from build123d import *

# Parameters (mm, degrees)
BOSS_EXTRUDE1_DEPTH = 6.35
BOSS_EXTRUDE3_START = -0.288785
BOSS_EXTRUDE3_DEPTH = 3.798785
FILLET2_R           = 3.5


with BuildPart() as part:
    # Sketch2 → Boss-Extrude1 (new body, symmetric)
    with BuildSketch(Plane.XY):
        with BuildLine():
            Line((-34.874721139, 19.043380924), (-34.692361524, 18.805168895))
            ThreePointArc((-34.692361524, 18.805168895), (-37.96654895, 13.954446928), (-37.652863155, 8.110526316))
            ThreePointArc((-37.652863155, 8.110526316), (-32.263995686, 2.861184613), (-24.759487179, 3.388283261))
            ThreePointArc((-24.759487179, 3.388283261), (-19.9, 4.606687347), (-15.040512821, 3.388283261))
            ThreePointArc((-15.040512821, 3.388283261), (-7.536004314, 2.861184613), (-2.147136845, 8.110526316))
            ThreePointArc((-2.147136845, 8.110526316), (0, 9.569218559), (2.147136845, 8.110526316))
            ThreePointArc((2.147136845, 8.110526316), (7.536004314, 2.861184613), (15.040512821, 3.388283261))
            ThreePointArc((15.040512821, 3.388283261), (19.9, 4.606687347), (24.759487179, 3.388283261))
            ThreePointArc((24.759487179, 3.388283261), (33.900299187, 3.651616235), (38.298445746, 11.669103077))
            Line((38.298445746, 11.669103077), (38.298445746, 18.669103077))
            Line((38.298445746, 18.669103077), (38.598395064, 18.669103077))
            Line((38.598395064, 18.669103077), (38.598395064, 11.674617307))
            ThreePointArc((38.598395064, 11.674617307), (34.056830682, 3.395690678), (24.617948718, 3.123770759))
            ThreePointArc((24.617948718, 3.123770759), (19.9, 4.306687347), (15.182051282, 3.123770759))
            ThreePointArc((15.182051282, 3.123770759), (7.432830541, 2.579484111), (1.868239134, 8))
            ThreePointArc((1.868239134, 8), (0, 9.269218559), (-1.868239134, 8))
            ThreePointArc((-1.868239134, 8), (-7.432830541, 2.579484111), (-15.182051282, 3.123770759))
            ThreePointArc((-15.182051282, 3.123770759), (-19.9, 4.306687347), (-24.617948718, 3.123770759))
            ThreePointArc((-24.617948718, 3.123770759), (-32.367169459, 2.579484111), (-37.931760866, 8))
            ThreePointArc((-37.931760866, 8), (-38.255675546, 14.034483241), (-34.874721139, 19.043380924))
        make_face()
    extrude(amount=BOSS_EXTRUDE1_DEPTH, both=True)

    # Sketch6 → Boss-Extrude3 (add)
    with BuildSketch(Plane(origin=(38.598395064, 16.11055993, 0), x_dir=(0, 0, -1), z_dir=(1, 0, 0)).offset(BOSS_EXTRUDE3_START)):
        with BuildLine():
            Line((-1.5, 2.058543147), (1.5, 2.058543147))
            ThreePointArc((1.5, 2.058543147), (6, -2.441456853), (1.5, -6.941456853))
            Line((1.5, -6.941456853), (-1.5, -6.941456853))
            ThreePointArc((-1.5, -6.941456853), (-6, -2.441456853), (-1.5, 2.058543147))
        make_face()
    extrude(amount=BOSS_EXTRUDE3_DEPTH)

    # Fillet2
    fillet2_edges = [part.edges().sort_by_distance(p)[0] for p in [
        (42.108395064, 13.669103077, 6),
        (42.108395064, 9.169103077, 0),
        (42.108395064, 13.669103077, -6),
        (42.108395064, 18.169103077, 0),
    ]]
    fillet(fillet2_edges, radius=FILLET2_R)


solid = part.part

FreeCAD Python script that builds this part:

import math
import FreeCAD as App
import Part
import Sketcher

V = App.Vector


def edges_at(feature, points):
    """Names of the edges that pass closest to the given points."""
    edges = feature.Shape.Edges
    near = lambda p: min(range(len(edges)), key=lambda i: edges[i].distToShape(Part.Vertex(*p))[0])
    return sorted({f"Edge{near(p) + 1}" for p in points})

doc = App.newDocument("Part")
params = doc.addObject("Spreadsheet::Sheet", "Params")
for row, (alias, value) in enumerate([
    ("sketch1_radius", "10 mm"),
    ("sketch1_radius2", "9.5 mm"),
    ("sketch1_radius3", "9.2 mm"),
    ("sketch1_height", "7 mm"),
    ("pad1_length", "12.7 mm"),
    ("sketch2_radius", "4.5 mm"),
    ("sketch2_height", "3 mm"),
    ("pad2_length", "3.798785 mm"),
    ("fillet_radius", "3.5 mm"),
], start=1):
    params.set(f"A{row}", alias)
    params.set(f"B{row}", "=" + value)
    params.setAlias(f"B{row}", alias)

body = doc.addObject("PartDesign::Body", "Body")

sketch1 = body.newObject("Sketcher::SketchObject", "Sketch")
sketch1.AttachmentSupport = (doc.getObject("XY_Plane"), [""])
sketch1.MapMode = "FlatFace"
sketch1.addGeometry(Part.LineSegment(V(-34.692362, 18.805169, 0), V(-34.874721, 19.043381, 0)), False)
sketch1.addGeometry(Part.ArcOfCircle(Part.Circle(V(-29.1, 11.5, 0), V(0, 0, 1), 9.5), math.radians(127.435316), math.radians(201.618272)), False)
sketch1.addGeometry(Part.ArcOfCircle(Part.Circle(V(-29.1, 11.5, 0), V(0, 0, 1), 9.5), math.radians(-158.381728), math.radians(-61.849131)), False)
sketch1.addGeometry(Part.ArcOfCircle(Part.Circle(V(-19.9, -5.693313, 0), V(0, 0, 1), 10), math.radians(61.849131), math.radians(118.150869)), False)
sketch1.addGeometry(Part.ArcOfCircle(Part.Circle(V(-10.7, 11.5, 0), V(0, 0, 1), 9.5), math.radians(-118.150869), math.radians(-21.618272)), False)
sketch1.addGeometry(Part.ArcOfCircle(Part.Circle(V(0, 7.259623, 0), V(0, 0, 1), 2.009596), math.radians(21.618272), math.radians(158.381728)), False)
sketch1.addGeometry(Part.ArcOfCircle(Part.Circle(V(10.7, 11.5, 0), V(0, 0, 1), 9.5), math.radians(-158.381728), math.radians(-61.849131)), False)
sketch1.addGeometry(Part.ArcOfCircle(Part.Circle(V(19.9, -5.693313, 0), V(0, 0, 1), 10), math.radians(61.849131), math.radians(118.150869)), False)
sketch1.addGeometry(Part.ArcOfCircle(Part.Circle(V(29.1, 11.5, 0), V(0, 0, 1), 9.5), math.radians(-118.150869), math.radians(1.0532)), False)
sketch1.addGeometry(Part.LineSegment(V(38.598395, 11.674617, 0), V(38.598395, 18.669103, 0)), False)
sketch1.addGeometry(Part.LineSegment(V(38.598395, 18.669103, 0), V(38.298446, 18.669103, 0)), False)
sketch1.addGeometry(Part.LineSegment(V(38.298446, 18.669103, 0), V(38.298446, 11.669103, 0)), False)
sketch1.addGeometry(Part.ArcOfCircle(Part.Circle(V(29.1, 11.5, 0), V(0, 0, 1), 9.2), math.radians(-118.150869), math.radians(1.0532)), False)
sketch1.addGeometry(Part.ArcOfCircle(Part.Circle(V(19.9, -5.693313, 0), V(0, 0, 1), 10.3), math.radians(61.849131), math.radians(118.150869)), False)
sketch1.addGeometry(Part.ArcOfCircle(Part.Circle(V(10.7, 11.5, 0), V(0, 0, 1), 9.2), math.radians(-158.381728), math.radians(-61.849131)), False)
sketch1.addGeometry(Part.ArcOfCircle(Part.Circle(V(0, 7.259623, 0), V(0, 0, 1), 2.309596), math.radians(21.618272), math.radians(158.381728)), False)
sketch1.addGeometry(Part.ArcOfCircle(Part.Circle(V(-10.7, 11.5, 0), V(0, 0, 1), 9.2), math.radians(-118.150869), math.radians(-21.618272)), False)
sketch1.addGeometry(Part.ArcOfCircle(Part.Circle(V(-19.9, -5.693313, 0), V(0, 0, 1), 10.3), math.radians(61.849131), math.radians(118.150869)), False)
sketch1.addGeometry(Part.ArcOfCircle(Part.Circle(V(-29.1, 11.5, 0), V(0, 0, 1), 9.2), math.radians(-158.381728), math.radians(-61.849131)), False)
sketch1.addGeometry(Part.ArcOfCircle(Part.Circle(V(-29.1, 11.5, 0), V(0, 0, 1), 9.2), math.radians(127.435316), math.radians(201.618272)), False)
sketch1.addConstraint(Sketcher.Constraint("Coincident", 0, 2, 1, 1))
sketch1.addConstraint(Sketcher.Constraint("Tangent", 1, 2, 2, 1))
sketch1.addConstraint(Sketcher.Constraint("Tangent", 2, 2, 3, 2))
sketch1.addConstraint(Sketcher.Constraint("Tangent", 3, 1, 4, 1))
sketch1.addConstraint(Sketcher.Constraint("Tangent", 4, 2, 5, 2))
sketch1.addConstraint(Sketcher.Constraint("Tangent", 5, 1, 6, 1))
sketch1.addConstraint(Sketcher.Constraint("Tangent", 6, 2, 7, 2))
sketch1.addConstraint(Sketcher.Constraint("Tangent", 7, 1, 8, 1))
sketch1.addConstraint(Sketcher.Constraint("Coincident", 8, 2, 9, 1))
sketch1.addConstraint(Sketcher.Constraint("Coincident", 9, 2, 10, 1))
sketch1.addConstraint(Sketcher.Constraint("Coincident", 10, 2, 11, 1))
sketch1.addConstraint(Sketcher.Constraint("Coincident", 11, 2, 12, 2))
sketch1.addConstraint(Sketcher.Constraint("Tangent", 12, 1, 13, 1))
sketch1.addConstraint(Sketcher.Constraint("Tangent", 13, 2, 14, 2))
sketch1.addConstraint(Sketcher.Constraint("Tangent", 14, 1, 15, 1))
sketch1.addConstraint(Sketcher.Constraint("Tangent", 15, 2, 16, 2))
sketch1.addConstraint(Sketcher.Constraint("Tangent", 16, 1, 17, 1))
sketch1.addConstraint(Sketcher.Constraint("Tangent", 17, 2, 18, 2))
sketch1.addConstraint(Sketcher.Constraint("Tangent", 18, 1, 19, 2))
sketch1.addConstraint(Sketcher.Constraint("Coincident", 19, 1, 0, 1))
sketch1.addConstraint(Sketcher.Constraint("Vertical", 9))
sketch1.addConstraint(Sketcher.Constraint("Horizontal", 10))
sketch1.addConstraint(Sketcher.Constraint("Vertical", 11))
sketch1.addConstraint(Sketcher.Constraint("Coincident", 12, 3, 8, 3))
sketch1.addConstraint(Sketcher.Constraint("Coincident", 13, 3, 7, 3))
sketch1.addConstraint(Sketcher.Constraint("Coincident", 14, 3, 6, 3))
sketch1.addConstraint(Sketcher.Constraint("Coincident", 15, 3, 5, 3))
sketch1.addConstraint(Sketcher.Constraint("Coincident", 16, 3, 4, 3))
sketch1.addConstraint(Sketcher.Constraint("Coincident", 17, 3, 3, 3))
sketch1.addConstraint(Sketcher.Constraint("Coincident", 18, 3, 1, 3))
sketch1.addConstraint(Sketcher.Constraint("Equal", 1, 2))
sketch1.addConstraint(Sketcher.Constraint("Equal", 2, 4))
sketch1.addConstraint(Sketcher.Constraint("Equal", 4, 6))
sketch1.addConstraint(Sketcher.Constraint("Equal", 3, 7))
sketch1.addConstraint(Sketcher.Constraint("Equal", 6, 8))
sketch1.addConstraint(Sketcher.Constraint("Equal", 18, 19))
sketch1.addConstraint(Sketcher.Constraint("Symmetric", 4, 3, 6, 3, -2))
sketch1.addConstraint(Sketcher.Constraint("Symmetric", 1, 3, 8, 3, -2))
sketch1.addConstraint(Sketcher.Constraint("Horizontal", 2, 3, 4, 3))
sketch1.addConstraint(Sketcher.Constraint("Horizontal", 1, 2, 4, 2))
sketch1.addConstraint(Sketcher.Constraint("Horizontal", 15, 2, 18, 1))
sketch1.addConstraint(Sketcher.Constraint("Radius", 3, 10.0))
sketch1.addConstraint(Sketcher.Constraint("Radius", 1, 9.5))
sketch1.addConstraint(Sketcher.Constraint("Radius", 12, 9.2))
sketch1.addConstraint(Sketcher.Constraint("DistanceY", 11, 2, 11, 1, 7.0))
sketch1.addConstraint(Sketcher.Constraint("DistanceY", -1, 1, 1, 2, 8.0))
sketch1.addConstraint(Sketcher.Constraint("DistanceX", 2, 3, 7, 3, 49.0))
sketch1.addConstraint(Sketcher.Constraint("DistanceX", 1, 3, -1, 1, 29.1))
sketch1.addConstraint(Sketcher.Constraint("DistanceY", -1, 1, 1, 3, 11.5))
sketch1.addConstraint(Sketcher.Constraint("DistanceX", 10, 2, 10, 1, 0.299949))
sketch1.addConstraint(Sketcher.Constraint("DistanceX", 0, 2, -1, 1, 34.874721))
sketch1.addConstraint(Sketcher.Constraint("DistanceX", 19, 1, -1, 1, 34.692362))
sketch1.addConstraint(Sketcher.Constraint("DistanceY", 13, 3, 8, 2, 17.36793))
sketch1.setExpression("Constraints[41]", "Params.sketch1_radius")
sketch1.setExpression("Constraints[42]", "Params.sketch1_radius2")
sketch1.setExpression("Constraints[43]", "Params.sketch1_radius3")
sketch1.setExpression("Constraints[44]", "Params.sketch1_height")
pad1 = body.newObject("PartDesign::Pad", "Pad")
pad1.Profile = sketch1
pad1.setExpression("Length", "Params.pad1_length")
pad1.Midplane = True

sketch2 = body.newObject("Sketcher::SketchObject", "Sketch001")
sketch2.AttachmentSupport = (doc.getObject("YZ_Plane"), [""])
sketch2.MapMode = "FlatFace"
sketch2.AttachmentOffset = App.Placement(V(0, 0, 38.30961), App.Rotation())
sketch2.addGeometry(Part.LineSegment(V(18.169103, -1.5, 0), V(18.169103, 1.5, 0)), False)
sketch2.addGeometry(Part.ArcOfCircle(Part.Circle(V(13.669103, 1.5, 0), V(0, 0, 1), 4.5), math.radians(0), math.radians(180)), False)
sketch2.addGeometry(Part.LineSegment(V(9.169103, 1.5, 0), V(9.169103, -1.5, 0)), False)
sketch2.addGeometry(Part.ArcOfCircle(Part.Circle(V(13.669103, -1.5, 0), V(0, 0, 1), 4.5), math.radians(180), math.radians(360)), False)
sketch2.addConstraint(Sketcher.Constraint("Tangent", 0, 2, 1, 1))
sketch2.addConstraint(Sketcher.Constraint("Tangent", 1, 2, 2, 1))
sketch2.addConstraint(Sketcher.Constraint("Tangent", 2, 2, 3, 1))
sketch2.addConstraint(Sketcher.Constraint("Tangent", 3, 2, 0, 1))
sketch2.addConstraint(Sketcher.Constraint("Vertical", 0))
sketch2.addConstraint(Sketcher.Constraint("Vertical", 2))
sketch2.addConstraint(Sketcher.Constraint("Radius", 1, 4.5))
sketch2.addConstraint(Sketcher.Constraint("DistanceY", 0, 1, 0, 2, 3.0))
sketch2.addConstraint(Sketcher.Constraint("DistanceY", -1, 1, 1, 3, 1.5))
sketch2.addConstraint(Sketcher.Constraint("DistanceX", -1, 1, 1, 3, 13.669103))
sketch2.setExpression("Constraints[6]", "Params.sketch2_radius")
sketch2.setExpression("Constraints[7]", "Params.sketch2_height")
pad2 = body.newObject("PartDesign::Pad", "Pad001")
pad2.Profile = sketch2
pad2.setExpression("Length", "Params.pad2_length")
doc.recompute()

fillet = body.newObject("PartDesign::Fillet", "Fillet")
fillet.Base = (pad2, edges_at(pad2, [
    (42.108, 13.669, 6),
    (42.108, 9.169, 0),
    (42.108, 13.669, -6),
    (42.108, 18.169, 0),
]))
fillet.setExpression("Radius", "Params.fillet_radius")

doc.recompute()
